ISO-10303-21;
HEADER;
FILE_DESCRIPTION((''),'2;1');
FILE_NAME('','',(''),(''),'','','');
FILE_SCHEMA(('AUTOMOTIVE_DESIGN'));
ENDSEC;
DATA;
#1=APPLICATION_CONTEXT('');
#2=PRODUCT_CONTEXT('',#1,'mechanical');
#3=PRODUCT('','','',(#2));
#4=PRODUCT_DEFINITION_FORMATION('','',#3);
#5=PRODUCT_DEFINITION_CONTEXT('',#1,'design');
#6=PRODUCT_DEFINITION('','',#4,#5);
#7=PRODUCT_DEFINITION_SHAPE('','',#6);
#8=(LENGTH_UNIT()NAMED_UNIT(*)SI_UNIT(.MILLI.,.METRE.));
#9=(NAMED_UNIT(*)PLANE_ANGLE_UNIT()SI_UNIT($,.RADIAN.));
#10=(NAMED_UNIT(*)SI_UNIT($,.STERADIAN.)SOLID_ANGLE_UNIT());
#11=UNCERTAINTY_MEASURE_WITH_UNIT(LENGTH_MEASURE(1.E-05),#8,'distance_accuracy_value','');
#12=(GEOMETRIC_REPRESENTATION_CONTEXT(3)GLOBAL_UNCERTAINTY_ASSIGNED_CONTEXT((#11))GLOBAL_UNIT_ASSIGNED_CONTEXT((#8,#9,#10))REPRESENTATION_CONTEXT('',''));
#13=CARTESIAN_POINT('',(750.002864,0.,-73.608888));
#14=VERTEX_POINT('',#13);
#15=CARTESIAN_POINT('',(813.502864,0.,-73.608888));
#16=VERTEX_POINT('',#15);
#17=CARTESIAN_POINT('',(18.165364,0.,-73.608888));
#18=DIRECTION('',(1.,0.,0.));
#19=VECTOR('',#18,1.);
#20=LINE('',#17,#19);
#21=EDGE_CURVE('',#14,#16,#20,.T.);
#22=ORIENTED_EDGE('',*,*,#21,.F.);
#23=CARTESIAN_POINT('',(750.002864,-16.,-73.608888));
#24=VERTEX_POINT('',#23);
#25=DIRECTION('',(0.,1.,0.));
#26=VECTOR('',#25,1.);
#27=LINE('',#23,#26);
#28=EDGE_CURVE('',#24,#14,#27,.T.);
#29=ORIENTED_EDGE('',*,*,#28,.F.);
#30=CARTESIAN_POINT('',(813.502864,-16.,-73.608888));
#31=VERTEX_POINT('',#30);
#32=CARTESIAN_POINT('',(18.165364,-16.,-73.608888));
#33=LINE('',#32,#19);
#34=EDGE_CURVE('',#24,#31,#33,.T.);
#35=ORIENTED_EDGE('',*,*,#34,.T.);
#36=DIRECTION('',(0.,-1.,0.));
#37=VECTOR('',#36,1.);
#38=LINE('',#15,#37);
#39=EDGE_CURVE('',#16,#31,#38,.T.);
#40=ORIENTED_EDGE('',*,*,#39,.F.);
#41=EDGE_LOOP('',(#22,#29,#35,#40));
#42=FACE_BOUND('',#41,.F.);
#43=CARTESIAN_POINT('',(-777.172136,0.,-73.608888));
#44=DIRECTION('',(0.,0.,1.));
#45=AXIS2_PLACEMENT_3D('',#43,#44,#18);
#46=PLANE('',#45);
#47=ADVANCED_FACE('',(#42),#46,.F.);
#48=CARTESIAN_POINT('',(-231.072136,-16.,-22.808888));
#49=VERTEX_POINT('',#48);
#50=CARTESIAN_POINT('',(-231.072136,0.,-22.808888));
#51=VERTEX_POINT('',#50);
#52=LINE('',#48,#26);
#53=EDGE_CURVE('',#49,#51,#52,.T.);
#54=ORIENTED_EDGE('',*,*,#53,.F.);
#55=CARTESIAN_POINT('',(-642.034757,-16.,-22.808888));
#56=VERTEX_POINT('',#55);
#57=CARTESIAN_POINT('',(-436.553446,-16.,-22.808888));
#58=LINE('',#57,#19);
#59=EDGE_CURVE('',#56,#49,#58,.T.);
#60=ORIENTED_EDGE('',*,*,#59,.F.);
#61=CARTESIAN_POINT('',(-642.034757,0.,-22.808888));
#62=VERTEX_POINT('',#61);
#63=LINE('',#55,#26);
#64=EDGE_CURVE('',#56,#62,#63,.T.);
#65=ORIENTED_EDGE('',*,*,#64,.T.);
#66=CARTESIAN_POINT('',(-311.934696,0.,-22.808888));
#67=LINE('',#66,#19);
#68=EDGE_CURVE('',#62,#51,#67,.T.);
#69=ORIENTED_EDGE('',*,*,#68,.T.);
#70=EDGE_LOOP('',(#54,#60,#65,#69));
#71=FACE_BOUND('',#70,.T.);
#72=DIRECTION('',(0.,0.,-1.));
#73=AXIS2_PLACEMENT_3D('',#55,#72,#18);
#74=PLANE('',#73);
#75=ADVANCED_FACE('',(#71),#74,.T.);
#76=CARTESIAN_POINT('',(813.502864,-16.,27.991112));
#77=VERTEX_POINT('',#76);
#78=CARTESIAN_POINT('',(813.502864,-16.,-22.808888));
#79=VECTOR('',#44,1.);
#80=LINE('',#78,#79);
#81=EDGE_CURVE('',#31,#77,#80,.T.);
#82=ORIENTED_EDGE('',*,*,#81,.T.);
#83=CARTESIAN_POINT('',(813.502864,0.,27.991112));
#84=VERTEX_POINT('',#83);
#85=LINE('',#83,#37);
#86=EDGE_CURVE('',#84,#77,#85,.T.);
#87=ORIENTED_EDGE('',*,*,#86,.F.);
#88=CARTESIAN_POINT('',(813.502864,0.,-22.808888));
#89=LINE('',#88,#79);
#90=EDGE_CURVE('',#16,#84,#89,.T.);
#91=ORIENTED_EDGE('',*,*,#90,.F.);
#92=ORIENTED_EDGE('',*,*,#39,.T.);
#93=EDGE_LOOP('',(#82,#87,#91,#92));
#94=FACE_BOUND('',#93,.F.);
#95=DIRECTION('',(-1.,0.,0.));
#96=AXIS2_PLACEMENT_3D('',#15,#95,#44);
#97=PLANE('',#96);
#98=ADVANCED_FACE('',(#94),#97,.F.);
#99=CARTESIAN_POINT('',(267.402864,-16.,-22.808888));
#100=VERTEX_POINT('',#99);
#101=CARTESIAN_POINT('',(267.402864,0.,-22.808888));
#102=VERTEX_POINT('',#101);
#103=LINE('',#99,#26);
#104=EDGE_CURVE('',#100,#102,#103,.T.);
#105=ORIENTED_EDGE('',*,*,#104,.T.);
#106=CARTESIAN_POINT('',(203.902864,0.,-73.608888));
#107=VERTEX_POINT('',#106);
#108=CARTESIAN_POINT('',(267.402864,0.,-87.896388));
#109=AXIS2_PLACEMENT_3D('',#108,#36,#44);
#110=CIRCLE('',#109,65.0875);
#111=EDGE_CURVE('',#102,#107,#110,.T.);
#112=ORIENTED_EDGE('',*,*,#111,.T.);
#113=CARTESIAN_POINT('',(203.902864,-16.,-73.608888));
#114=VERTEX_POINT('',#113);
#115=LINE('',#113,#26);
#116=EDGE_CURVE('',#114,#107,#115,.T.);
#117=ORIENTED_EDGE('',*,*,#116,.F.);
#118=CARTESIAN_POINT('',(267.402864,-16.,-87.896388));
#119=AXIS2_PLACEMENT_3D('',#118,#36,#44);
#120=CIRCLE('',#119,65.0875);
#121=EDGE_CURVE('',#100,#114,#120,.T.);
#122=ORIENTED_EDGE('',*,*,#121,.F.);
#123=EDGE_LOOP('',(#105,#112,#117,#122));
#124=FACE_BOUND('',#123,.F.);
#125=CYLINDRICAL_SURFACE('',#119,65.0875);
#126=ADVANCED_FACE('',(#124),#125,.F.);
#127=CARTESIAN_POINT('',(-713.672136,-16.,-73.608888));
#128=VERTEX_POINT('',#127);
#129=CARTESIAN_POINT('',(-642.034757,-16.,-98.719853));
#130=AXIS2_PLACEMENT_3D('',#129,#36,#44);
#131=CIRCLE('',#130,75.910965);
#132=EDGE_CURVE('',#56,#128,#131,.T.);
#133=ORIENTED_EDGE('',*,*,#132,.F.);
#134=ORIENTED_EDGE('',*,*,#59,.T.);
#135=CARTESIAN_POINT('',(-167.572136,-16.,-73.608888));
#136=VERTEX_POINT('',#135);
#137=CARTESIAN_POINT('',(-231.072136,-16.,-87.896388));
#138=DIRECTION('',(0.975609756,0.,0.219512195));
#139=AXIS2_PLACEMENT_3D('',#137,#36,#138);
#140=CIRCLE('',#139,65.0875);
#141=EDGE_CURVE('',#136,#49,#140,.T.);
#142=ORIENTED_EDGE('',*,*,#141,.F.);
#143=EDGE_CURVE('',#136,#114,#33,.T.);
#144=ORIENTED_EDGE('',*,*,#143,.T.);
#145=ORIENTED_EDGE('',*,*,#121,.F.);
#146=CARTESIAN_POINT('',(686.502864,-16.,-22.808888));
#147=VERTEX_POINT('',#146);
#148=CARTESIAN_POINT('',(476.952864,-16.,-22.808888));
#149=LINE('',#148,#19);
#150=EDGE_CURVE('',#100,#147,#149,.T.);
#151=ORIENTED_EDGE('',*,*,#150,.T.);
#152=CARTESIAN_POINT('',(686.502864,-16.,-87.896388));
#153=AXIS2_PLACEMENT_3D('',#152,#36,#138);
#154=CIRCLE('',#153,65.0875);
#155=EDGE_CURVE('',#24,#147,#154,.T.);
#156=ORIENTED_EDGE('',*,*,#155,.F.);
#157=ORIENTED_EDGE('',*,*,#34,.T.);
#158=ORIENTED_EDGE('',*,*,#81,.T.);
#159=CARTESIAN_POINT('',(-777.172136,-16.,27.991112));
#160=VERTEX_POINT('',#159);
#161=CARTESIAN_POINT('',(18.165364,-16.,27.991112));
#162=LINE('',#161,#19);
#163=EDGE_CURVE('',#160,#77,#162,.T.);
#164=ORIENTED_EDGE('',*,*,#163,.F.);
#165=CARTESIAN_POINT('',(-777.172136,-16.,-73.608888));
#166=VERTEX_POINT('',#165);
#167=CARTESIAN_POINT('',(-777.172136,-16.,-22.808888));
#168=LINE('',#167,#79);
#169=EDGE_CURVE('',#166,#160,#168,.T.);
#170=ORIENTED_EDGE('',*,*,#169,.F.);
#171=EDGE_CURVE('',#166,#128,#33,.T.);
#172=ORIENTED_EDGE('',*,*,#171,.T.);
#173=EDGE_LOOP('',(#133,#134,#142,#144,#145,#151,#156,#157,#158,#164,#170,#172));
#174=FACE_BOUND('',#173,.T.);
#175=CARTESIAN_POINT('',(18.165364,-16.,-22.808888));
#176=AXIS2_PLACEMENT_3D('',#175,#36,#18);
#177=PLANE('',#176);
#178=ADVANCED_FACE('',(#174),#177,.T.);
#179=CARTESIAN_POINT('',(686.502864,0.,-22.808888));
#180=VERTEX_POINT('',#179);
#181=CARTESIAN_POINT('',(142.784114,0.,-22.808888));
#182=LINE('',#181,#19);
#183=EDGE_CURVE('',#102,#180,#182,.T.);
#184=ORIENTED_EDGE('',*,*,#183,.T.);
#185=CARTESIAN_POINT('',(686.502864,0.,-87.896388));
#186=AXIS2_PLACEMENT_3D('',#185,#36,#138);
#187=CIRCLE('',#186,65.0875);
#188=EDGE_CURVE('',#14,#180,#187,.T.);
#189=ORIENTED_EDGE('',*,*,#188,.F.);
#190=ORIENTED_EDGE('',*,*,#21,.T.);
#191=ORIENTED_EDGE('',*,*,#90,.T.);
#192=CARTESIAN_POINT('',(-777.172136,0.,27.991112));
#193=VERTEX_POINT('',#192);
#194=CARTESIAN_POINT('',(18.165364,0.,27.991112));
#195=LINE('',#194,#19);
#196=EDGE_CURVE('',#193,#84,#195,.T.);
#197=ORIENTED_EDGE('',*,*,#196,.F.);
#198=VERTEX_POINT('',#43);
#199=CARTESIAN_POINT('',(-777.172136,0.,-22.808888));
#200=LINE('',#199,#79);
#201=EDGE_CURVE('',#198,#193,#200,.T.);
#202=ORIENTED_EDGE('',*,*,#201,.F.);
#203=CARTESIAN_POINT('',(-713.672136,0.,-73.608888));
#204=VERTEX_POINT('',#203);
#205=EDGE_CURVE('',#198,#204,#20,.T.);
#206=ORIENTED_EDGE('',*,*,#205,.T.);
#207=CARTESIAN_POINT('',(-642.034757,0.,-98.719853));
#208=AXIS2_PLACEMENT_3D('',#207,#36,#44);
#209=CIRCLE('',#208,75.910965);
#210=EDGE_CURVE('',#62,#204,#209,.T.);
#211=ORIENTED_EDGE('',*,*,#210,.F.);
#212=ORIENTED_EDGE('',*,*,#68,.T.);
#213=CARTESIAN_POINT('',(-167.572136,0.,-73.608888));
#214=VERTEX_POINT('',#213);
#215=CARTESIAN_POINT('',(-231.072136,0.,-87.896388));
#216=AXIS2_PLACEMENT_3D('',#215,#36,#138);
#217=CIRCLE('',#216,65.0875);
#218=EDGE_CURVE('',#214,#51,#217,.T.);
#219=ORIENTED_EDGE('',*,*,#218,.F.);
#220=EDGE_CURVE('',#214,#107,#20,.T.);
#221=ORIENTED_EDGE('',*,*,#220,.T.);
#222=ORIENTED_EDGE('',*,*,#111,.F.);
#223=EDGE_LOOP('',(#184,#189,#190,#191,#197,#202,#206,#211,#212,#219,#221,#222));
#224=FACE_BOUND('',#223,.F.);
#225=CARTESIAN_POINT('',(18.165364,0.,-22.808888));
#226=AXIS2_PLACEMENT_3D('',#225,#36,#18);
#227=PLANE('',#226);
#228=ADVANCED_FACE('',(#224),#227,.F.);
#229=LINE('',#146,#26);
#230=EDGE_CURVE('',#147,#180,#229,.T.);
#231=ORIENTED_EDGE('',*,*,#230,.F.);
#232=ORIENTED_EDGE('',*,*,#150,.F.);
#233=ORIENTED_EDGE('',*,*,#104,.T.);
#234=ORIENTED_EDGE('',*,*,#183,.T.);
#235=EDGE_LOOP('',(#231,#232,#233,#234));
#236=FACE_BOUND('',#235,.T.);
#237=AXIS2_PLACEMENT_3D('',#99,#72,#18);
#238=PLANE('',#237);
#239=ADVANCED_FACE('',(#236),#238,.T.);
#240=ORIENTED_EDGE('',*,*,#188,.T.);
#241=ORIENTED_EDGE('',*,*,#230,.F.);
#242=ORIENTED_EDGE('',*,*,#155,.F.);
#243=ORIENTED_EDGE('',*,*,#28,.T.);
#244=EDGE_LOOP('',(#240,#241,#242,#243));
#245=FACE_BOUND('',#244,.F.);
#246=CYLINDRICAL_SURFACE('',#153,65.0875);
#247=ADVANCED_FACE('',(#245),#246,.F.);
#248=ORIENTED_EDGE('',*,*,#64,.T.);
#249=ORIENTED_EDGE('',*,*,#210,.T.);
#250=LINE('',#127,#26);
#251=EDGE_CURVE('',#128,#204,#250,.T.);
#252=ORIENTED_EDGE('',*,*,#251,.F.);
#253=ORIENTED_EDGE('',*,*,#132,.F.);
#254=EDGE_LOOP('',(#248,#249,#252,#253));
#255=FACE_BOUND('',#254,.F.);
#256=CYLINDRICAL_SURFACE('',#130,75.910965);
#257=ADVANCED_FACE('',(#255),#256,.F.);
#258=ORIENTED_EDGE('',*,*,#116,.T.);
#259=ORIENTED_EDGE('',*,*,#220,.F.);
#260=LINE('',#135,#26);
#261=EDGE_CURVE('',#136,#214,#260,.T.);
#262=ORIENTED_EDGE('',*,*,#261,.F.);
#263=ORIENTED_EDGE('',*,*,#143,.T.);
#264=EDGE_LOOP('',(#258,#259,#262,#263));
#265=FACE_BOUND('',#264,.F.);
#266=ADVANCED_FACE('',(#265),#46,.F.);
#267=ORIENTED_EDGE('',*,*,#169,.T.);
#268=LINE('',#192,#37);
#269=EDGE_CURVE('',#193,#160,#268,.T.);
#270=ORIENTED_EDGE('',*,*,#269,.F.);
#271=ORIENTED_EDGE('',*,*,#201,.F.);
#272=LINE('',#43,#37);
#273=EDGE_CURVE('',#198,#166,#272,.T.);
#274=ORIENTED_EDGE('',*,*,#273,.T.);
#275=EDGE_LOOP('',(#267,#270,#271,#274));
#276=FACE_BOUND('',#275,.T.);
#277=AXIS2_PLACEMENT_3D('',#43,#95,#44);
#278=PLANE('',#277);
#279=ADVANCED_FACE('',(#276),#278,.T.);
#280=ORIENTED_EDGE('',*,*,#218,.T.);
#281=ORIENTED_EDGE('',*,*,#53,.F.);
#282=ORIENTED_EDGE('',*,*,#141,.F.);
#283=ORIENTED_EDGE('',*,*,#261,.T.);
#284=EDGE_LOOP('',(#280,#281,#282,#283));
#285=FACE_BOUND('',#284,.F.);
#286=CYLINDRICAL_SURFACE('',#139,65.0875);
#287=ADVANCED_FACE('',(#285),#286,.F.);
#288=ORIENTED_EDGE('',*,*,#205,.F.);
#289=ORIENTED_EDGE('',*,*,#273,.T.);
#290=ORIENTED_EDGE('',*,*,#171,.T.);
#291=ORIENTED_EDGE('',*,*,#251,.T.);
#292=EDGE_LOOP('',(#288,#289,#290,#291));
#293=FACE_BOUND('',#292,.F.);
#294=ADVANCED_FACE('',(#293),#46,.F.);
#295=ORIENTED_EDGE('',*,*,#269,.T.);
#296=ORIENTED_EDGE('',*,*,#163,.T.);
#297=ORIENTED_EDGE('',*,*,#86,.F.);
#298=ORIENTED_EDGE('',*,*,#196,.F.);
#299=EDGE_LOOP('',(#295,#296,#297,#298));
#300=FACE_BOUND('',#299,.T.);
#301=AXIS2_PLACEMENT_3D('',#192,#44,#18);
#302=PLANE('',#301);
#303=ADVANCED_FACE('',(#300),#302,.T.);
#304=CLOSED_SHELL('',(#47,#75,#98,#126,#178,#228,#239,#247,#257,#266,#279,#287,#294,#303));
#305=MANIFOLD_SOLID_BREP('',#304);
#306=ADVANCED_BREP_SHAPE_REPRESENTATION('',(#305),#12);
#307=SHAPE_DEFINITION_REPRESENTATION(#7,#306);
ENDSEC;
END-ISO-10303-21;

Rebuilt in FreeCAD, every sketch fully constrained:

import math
import FreeCAD as App
import Part
import Sketcher
from FreeCAD import Vector
Q = App.Units.Quantity


def add_polygon(sketch, points):
    """Adds a closed chain of lines whose ends are joined by coincident constraints."""
    first, n = sketch.GeometryCount, len(points)
    for a, b in zip(points, points[1:] + points[:1]):
        sketch.addGeometry(Part.LineSegment(App.Vector(*a, 0), App.Vector(*b, 0)), False)
    for i in range(n):
        sketch.addConstraint(Sketcher.Constraint("Coincident", first + i, 2, first + (i + 1) % n, 1))

doc = App.newDocument("Part")
body = doc.addObject("PartDesign::Body", "Body")

sketch1 = body.newObject("Sketcher::SketchObject", "Sketch")
sketch1.AttachmentSupport = (doc.getObject("XZ_Plane"), [""])
sketch1.MapMode = "FlatFace"
add_polygon(sketch1, [(-777, 28), (-777, -74), (814, -74), (814, 28)])
sketch1.addConstraint(Sketcher.Constraint("Vertical", 0))
sketch1.addConstraint(Sketcher.Constraint("Horizontal", 1))
sketch1.addConstraint(Sketcher.Constraint("Vertical", 2))
sketch1.addConstraint(Sketcher.Constraint("Horizontal", 3))
sketch1.addConstraint(Sketcher.Constraint("DistanceY", 0, 2, 0, 1, Q("4 in")))
sketch1.addConstraint(Sketcher.Constraint("DistanceX", 1, 1, 1, 2, Q("62.625 in")))
sketch1.addConstraint(Sketcher.Constraint("DistanceY", 0, 2, -1, 1, Q("73.608888 mm")))
sketch1.addConstraint(Sketcher.Constraint("DistanceX", 0, 2, -1, 1, Q("777.172136 mm")))
pad1 = body.newObject("PartDesign::Pad", "Pad")
pad1.Profile = sketch1
pad1.Length = 16

sketch2 = body.newObject("Sketcher::SketchObject", "Sketch001")
sketch2.AttachmentSupport = (doc.getObject("XZ_Plane"), [""])
sketch2.MapMode = "FlatFace"
sketch2.AttachmentOffset = App.Placement(Vector(0, 0, 16), App.Rotation())
sketch2.addGeometry(Part.ArcOfCircle(Part.Circle(Vector(-642, -99, 0), Vector(0, 0, 1), 76), math.radians(90), math.radians(161)), False)
sketch2.addGeometry(Part.LineSegment(Vector(-714, -74, 0), Vector(-168, -74, 0)), False)
sketch2.addGeometry(Part.ArcOfCircle(Part.Circle(Vector(-231, -88, 0), Vector(0, 0, 1), 65), math.radians(13), math.radians(90)), False)
sketch2.addGeometry(Part.LineSegment(Vector(-231, -23, 0), Vector(-642, -23, 0)), False)
sketch2.addGeometry(Part.ArcOfCircle(Part.Circle(Vector(267, -88, 0), Vector(0, 0, 1), 65), math.radians(90), math.radians(167)), False)
sketch2.addGeometry(Part.LineSegment(Vector(204, -74, 0), Vector(750, -74, 0)), False)
sketch2.addGeometry(Part.ArcOfCircle(Part.Circle(Vector(687, -88, 0), Vector(0, 0, 1), 65), math.radians(13), math.radians(90)), False)
sketch2.addGeometry(Part.LineSegment(Vector(687, -23, 0), Vector(267, -23, 0)), False)
sketch2.addConstraint(Sketcher.Constraint("Coincident", 0, 2, 1, 1))
sketch2.addConstraint(Sketcher.Constraint("Coincident", 1, 2, 2, 1))
sketch2.addConstraint(Sketcher.Constraint("Tangent", 2, 2, 3, 1))
sketch2.addConstraint(Sketcher.Constraint("Tangent", 3, 2, 0, 1))
sketch2.addConstraint(Sketcher.Constraint("Coincident", 4, 2, 5, 1))
sketch2.addConstraint(Sketcher.Constraint("Coincident", 5, 2, 6, 1))
sketch2.addConstraint(Sketcher.Constraint("Tangent", 6, 2, 7, 1))
sketch2.addConstraint(Sketcher.Constraint("Tangent", 7, 2, 4, 1))
sketch2.addConstraint(Sketcher.Constraint("Horizontal", 1))
sketch2.addConstraint(Sketcher.Constraint("Horizontal", 3))
sketch2.addConstraint(Sketcher.Constraint("Horizontal", 5))
sketch2.addConstraint(Sketcher.Constraint("Horizontal", 7))
sketch2.addConstraint(Sketcher.Constraint("Equal", 2, 4))
sketch2.addConstraint(Sketcher.Constraint("Equal", 4, 6))
sketch2.addConstraint(Sketcher.Constraint("Horizontal", 2, 3, 4, 3))
sketch2.addConstraint(Sketcher.Constraint("Horizontal", 1, 2, 4, 2))
sketch2.addConstraint(Sketcher.Constraint("Equal", 1, 5))
sketch2.addConstraint(Sketcher.Constraint("DistanceX", 1, 1, 1, 2, Q("21.5 in")))
sketch2.addConstraint(Sketcher.Constraint("DistanceX", 7, 2, 7, 1, Q("16.5 in")))
sketch2.addConstraint(Sketcher.Constraint("Radius", 2, Q("2.5625 in")))
sketch2.addConstraint(Sketcher.Constraint("DistanceX", 2, 3, 4, 3, Q("19.625 in")))
sketch2.addConstraint(Sketcher.Constraint("Radius", 0, Q("75.910965 mm")))
sketch2.addConstraint(Sketcher.Constraint("DistanceY", 2, 3, -1, 1, Q("87.896388 mm")))
sketch2.addConstraint(Sketcher.Constraint("DistanceX", 0, 3, -1, 1, Q("642.034757 mm")))
pocket1 = body.newObject("PartDesign::Pocket", "Pocket")
pocket1.Profile = sketch2
pocket1.Length = Q("1 in")

doc.recompute()
